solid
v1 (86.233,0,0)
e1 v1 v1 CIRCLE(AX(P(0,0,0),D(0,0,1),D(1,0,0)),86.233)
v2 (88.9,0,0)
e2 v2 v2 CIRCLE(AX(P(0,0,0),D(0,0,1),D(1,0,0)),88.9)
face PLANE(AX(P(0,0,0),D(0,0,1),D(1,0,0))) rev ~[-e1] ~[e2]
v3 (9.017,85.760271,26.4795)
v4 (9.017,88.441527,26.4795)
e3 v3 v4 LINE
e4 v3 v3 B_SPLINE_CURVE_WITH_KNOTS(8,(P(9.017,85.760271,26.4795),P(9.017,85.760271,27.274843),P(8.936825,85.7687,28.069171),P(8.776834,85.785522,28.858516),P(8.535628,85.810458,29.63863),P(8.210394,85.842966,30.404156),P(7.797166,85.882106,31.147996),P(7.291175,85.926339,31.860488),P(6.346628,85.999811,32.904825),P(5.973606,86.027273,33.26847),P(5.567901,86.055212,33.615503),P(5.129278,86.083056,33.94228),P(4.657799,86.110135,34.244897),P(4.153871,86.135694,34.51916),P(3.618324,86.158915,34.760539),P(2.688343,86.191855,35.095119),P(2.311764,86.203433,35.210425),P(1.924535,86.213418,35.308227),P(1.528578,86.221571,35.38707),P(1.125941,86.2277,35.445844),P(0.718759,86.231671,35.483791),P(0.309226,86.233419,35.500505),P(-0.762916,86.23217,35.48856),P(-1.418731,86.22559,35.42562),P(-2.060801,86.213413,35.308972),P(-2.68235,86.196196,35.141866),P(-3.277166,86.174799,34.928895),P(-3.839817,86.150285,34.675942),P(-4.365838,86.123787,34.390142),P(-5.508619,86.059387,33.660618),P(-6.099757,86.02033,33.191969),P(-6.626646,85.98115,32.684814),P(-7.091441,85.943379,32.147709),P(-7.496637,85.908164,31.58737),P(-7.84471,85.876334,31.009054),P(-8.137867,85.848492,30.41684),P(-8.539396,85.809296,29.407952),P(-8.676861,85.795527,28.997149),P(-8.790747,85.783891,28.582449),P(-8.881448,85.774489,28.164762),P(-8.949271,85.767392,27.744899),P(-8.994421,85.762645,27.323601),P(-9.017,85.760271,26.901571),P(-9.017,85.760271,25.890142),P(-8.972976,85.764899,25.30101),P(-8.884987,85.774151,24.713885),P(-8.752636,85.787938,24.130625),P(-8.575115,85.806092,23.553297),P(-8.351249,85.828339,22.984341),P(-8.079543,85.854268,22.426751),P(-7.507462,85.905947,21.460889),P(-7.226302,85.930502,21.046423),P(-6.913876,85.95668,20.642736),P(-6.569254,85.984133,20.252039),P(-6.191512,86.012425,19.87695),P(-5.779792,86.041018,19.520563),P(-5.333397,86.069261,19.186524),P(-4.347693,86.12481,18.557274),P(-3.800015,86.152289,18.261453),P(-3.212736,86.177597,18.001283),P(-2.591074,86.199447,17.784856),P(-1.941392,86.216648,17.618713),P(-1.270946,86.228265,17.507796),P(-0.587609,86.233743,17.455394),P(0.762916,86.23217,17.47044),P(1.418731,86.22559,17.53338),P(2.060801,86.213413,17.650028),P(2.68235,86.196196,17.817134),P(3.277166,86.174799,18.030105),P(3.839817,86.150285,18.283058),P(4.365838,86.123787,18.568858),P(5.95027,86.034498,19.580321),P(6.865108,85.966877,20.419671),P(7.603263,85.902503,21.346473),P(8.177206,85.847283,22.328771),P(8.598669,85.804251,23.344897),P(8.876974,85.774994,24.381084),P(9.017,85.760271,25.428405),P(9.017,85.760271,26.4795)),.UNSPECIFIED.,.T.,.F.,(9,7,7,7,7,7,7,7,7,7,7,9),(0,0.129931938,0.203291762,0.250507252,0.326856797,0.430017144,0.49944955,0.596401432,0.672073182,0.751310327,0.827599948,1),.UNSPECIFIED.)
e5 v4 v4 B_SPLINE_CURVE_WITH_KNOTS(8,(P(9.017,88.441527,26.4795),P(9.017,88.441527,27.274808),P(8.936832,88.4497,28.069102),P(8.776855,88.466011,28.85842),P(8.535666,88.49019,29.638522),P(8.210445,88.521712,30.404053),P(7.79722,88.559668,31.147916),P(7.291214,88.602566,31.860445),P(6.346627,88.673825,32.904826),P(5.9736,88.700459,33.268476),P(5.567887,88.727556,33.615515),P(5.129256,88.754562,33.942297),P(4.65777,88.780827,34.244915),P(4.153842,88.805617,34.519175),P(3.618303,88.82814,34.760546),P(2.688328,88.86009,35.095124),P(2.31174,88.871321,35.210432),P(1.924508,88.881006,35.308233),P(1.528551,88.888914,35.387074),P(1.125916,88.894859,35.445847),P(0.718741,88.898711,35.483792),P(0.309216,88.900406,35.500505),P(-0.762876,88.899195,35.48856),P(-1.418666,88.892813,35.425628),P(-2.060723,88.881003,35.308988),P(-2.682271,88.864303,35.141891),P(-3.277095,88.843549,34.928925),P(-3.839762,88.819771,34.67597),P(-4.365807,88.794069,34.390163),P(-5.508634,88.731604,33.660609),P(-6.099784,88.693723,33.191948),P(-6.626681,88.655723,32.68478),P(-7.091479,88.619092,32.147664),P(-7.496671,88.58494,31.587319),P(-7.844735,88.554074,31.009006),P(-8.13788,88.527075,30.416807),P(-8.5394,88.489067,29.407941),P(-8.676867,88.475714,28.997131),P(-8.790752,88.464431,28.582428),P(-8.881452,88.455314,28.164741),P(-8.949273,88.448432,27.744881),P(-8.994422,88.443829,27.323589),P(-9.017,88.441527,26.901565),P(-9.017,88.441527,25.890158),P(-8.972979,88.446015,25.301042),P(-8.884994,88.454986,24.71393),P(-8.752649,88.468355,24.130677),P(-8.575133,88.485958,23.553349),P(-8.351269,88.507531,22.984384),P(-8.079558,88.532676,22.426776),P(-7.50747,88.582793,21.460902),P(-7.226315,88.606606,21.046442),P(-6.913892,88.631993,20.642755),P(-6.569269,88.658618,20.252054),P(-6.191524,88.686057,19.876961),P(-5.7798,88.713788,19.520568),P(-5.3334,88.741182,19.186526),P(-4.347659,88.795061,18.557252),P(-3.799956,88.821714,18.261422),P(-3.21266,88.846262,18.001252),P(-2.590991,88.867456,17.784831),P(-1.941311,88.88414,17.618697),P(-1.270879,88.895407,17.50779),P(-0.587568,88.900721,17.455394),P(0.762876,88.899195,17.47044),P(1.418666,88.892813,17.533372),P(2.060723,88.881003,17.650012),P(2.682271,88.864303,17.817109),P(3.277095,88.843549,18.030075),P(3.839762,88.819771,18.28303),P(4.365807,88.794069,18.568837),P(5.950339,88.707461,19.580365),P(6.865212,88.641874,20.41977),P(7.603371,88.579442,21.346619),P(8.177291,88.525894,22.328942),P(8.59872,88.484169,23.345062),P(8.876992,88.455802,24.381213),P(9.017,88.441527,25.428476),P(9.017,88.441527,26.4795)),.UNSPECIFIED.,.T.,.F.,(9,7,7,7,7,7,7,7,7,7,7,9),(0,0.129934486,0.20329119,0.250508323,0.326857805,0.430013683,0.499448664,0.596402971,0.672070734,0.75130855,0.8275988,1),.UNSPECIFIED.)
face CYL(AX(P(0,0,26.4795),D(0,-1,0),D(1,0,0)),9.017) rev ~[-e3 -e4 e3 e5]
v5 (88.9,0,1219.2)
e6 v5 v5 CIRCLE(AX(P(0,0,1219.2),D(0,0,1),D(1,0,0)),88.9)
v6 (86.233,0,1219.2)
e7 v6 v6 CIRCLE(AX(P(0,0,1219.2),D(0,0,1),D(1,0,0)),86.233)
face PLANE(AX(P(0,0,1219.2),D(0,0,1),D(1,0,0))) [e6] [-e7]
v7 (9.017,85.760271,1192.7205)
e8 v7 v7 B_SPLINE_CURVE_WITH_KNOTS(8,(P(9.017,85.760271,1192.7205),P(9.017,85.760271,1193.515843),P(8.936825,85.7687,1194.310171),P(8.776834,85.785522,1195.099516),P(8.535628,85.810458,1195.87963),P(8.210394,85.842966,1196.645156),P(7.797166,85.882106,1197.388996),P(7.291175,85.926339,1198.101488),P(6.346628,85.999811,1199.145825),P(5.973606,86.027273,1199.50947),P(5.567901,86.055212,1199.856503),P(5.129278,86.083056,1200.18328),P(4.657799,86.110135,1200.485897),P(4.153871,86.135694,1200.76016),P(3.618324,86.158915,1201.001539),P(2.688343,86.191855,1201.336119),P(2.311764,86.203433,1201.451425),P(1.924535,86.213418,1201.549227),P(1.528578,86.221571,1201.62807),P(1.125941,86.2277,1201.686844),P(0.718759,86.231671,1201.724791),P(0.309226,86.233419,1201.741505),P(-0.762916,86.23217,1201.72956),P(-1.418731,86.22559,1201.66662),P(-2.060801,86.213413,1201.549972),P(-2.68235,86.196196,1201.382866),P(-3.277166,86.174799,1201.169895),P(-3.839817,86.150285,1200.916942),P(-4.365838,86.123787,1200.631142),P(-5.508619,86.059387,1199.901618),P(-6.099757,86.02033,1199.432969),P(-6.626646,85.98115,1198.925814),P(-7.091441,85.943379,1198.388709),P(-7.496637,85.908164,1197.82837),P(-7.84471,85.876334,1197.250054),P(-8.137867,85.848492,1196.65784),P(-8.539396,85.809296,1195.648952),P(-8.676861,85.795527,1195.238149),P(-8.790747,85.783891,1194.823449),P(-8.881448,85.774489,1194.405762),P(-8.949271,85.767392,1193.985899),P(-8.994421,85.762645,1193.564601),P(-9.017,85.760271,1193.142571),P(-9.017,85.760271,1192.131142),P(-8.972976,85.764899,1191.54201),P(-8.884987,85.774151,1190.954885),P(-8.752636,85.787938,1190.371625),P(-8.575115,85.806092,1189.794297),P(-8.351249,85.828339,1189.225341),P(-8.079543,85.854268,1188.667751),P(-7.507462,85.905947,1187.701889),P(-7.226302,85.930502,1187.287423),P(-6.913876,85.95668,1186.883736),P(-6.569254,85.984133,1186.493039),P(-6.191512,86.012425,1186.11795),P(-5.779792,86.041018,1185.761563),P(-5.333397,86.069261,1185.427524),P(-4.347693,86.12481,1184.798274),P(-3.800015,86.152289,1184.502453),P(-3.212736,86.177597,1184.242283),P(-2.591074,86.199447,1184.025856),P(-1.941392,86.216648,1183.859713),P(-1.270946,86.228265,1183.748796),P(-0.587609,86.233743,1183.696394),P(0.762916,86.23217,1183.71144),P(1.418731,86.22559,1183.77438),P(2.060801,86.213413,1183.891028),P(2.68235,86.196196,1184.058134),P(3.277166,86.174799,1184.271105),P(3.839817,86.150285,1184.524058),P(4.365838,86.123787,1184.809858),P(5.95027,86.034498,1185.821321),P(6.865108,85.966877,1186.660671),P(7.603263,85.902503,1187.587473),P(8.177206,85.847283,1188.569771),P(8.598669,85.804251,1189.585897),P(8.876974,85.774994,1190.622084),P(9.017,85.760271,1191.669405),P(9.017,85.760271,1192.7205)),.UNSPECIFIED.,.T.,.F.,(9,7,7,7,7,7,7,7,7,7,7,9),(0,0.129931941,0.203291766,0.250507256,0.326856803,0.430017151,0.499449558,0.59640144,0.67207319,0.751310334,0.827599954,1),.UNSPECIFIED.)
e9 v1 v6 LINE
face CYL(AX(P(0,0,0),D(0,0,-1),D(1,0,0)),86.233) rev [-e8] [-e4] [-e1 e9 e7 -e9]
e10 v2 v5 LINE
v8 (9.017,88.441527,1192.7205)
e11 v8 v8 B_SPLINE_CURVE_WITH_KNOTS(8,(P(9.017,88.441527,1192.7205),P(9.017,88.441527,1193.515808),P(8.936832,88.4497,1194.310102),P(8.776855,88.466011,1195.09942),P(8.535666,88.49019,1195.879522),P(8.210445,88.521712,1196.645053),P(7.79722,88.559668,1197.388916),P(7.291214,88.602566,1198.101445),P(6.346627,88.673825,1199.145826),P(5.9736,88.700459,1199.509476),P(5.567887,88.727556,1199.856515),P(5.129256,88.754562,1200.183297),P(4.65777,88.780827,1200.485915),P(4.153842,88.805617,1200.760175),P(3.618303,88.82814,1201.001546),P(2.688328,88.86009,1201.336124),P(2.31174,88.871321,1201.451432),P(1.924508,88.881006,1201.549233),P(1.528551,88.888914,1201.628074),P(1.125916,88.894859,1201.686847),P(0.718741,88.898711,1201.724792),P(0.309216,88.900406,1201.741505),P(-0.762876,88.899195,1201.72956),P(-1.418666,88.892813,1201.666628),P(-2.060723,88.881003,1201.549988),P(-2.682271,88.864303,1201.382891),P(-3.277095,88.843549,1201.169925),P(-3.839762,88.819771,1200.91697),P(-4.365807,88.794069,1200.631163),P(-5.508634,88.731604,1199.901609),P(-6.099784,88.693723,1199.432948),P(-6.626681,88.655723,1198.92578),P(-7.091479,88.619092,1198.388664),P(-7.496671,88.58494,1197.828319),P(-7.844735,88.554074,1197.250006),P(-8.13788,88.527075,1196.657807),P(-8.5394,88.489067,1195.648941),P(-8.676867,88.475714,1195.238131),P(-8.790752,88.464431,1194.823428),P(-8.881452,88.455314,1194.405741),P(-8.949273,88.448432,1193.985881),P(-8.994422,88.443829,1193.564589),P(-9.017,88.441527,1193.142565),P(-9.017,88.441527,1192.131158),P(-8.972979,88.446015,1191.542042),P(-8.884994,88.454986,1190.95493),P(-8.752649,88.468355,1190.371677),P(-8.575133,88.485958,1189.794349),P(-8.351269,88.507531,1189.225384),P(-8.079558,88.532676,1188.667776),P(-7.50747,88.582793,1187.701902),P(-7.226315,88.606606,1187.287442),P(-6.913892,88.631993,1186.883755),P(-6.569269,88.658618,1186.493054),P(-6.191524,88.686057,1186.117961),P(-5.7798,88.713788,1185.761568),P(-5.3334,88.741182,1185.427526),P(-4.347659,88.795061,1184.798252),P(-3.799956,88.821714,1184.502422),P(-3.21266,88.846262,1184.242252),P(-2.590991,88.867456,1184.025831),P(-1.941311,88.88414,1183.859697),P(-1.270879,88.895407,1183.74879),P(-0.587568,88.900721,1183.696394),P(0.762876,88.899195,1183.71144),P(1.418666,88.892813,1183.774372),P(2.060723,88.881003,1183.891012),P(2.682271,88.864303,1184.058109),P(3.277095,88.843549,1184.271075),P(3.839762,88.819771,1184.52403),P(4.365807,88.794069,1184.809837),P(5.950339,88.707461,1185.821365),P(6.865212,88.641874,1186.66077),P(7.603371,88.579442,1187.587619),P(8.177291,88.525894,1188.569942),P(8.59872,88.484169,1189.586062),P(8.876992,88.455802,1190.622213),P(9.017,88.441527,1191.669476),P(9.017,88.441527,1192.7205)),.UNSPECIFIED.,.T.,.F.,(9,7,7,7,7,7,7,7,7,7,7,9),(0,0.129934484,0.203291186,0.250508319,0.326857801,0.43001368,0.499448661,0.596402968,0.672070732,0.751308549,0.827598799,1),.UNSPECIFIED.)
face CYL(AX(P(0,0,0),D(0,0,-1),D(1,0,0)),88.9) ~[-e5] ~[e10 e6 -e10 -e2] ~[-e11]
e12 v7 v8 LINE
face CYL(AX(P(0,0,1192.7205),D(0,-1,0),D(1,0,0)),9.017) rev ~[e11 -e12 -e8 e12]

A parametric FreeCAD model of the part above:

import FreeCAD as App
import Part
import Sketcher
Q = App.Units.Quantity

doc = App.newDocument("Part")
body = doc.addObject("PartDesign::Body", "Body")

sketch1 = body.newObject("Sketcher::SketchObject", "Sketch")
sketch1.AttachmentSupport = (doc.getObject("XY_Plane"), [""])
sketch1.MapMode = "FlatFace"
sketch1.addGeometry([
    Part.Circle(App.Vector(0, 0, 0), App.Vector(0, 0, 1), 89),
    Part.Circle(App.Vector(0, 0, 0), App.Vector(0, 0, 1), 86),
], False)
sketch1.addConstraint([
    Sketcher.Constraint("Coincident", 0, 3, -1, 1),
    Sketcher.Constraint("Coincident", 1, 3, -1, 1),
    Sketcher.Constraint("Diameter", 0, Q("7 in")),
    Sketcher.Constraint("Diameter", 1, Q("6.79 in")),
])
pad1 = body.newObject("PartDesign::Pad", "Pad")
pad1.Profile = sketch1
pad1.Length = Q("48 in")

sketch2 = body.newObject("Sketcher::SketchObject", "Sketch001")
sketch2.AttachmentSupport = (doc.getObject("XZ_Plane"), [""])
sketch2.MapMode = "FlatFace"
sketch2.addGeometry([
    Part.Circle(App.Vector(0, 1193, 0), App.Vector(0, 0, 1), 9),
    Part.Circle(App.Vector(0, 26, 0), App.Vector(0, 0, 1), 9),
], False)
sketch2.addConstraint([
    Sketcher.Constraint("Equal", 0, 1),
    Sketcher.Constraint("PointOnObject", 0, 3, -2),
    Sketcher.Constraint("PointOnObject", 1, 3, -2),
    Sketcher.Constraint("Diameter", 0, Q("0.71 in")),
    Sketcher.Constraint("DistanceY", 1, 3, 0, 3, Q("45.915 in")),
    Sketcher.Constraint("DistanceY", -1, 1, 0, 3, Q("46.9575 in")),
])
pocket1 = body.newObject("PartDesign::Pocket", "Pocket")
pocket1.Profile = sketch2
pocket1.Length = Q("8 in")

doc.recompute()
